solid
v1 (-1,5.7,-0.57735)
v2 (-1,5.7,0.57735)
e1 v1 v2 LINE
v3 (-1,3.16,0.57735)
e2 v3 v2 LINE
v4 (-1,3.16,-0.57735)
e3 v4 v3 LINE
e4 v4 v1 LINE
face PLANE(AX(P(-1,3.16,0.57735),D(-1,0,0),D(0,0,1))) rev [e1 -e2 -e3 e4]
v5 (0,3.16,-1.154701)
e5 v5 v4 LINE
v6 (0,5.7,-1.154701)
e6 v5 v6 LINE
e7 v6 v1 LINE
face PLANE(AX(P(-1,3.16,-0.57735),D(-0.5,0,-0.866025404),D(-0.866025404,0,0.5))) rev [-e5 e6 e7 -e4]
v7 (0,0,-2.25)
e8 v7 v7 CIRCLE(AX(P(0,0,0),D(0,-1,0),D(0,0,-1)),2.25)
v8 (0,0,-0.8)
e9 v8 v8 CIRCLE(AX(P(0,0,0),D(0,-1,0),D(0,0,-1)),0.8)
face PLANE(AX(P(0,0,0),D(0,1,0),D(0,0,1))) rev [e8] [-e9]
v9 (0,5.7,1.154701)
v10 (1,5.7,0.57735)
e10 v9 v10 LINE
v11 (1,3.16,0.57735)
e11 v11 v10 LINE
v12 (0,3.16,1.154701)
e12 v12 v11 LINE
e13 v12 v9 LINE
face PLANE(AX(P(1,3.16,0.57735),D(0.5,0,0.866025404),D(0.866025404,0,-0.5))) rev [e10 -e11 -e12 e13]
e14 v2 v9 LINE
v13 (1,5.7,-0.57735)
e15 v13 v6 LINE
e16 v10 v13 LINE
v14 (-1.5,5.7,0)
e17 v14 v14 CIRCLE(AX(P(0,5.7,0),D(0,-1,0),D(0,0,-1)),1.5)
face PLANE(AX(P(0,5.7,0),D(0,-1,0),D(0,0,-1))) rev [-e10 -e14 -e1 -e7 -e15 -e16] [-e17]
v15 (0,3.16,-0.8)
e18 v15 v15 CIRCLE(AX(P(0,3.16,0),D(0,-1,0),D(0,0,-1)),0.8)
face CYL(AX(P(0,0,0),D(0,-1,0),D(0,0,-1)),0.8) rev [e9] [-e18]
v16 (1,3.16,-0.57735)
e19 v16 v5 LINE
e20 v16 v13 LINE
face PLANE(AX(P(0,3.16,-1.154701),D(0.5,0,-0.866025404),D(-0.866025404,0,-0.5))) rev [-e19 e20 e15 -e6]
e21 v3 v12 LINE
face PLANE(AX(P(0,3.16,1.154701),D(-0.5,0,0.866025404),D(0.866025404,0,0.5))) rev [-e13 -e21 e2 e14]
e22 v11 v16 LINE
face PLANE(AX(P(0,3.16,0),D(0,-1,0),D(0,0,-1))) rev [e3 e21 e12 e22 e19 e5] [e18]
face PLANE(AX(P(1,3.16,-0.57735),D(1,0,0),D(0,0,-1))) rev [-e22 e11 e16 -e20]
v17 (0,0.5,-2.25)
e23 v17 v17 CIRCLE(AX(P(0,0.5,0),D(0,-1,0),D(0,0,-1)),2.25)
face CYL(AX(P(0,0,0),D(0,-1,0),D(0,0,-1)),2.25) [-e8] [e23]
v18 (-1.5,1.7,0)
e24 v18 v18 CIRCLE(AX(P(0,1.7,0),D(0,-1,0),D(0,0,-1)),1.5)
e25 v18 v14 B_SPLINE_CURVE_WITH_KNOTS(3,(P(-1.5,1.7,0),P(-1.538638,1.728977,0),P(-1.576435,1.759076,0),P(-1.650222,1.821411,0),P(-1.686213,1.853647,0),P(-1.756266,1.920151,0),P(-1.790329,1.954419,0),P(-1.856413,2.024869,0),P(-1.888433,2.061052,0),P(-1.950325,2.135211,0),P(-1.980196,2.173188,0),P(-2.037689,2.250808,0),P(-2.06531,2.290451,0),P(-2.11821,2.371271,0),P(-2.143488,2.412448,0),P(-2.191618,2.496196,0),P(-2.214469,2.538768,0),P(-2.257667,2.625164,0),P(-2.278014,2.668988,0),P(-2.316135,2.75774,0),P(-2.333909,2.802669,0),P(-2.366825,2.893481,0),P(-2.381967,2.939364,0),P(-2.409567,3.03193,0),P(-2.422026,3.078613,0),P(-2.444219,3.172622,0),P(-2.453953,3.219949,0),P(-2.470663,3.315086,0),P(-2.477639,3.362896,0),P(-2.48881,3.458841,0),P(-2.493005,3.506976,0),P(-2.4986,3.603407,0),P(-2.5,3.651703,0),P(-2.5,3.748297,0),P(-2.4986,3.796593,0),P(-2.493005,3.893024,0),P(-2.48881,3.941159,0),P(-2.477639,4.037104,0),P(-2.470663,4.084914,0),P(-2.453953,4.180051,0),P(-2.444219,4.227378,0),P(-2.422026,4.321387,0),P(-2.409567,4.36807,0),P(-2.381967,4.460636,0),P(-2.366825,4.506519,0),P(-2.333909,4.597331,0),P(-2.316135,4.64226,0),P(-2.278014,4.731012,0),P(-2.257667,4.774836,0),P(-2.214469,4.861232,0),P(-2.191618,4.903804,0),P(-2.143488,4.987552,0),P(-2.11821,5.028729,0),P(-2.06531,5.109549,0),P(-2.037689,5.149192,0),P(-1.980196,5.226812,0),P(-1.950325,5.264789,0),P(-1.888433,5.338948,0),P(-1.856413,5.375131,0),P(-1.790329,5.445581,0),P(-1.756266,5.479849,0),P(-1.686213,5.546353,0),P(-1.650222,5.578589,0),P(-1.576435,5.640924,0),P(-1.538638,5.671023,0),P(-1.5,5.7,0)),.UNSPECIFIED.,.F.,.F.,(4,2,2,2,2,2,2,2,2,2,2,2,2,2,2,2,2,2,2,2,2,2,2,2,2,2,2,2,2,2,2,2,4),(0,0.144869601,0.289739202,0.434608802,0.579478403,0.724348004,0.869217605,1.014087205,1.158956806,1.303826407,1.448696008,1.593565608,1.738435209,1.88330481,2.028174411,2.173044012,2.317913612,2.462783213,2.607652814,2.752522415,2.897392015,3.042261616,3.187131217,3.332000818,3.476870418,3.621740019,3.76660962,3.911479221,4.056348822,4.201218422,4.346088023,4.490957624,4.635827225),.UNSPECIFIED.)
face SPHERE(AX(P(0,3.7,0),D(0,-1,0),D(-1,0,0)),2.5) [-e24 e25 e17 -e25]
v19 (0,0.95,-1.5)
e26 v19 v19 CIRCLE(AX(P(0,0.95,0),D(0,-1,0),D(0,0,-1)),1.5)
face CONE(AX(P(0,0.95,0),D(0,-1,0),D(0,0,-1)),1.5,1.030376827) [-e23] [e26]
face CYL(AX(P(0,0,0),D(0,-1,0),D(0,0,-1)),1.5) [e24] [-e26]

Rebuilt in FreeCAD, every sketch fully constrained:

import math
import FreeCAD as App
import Part
import Sketcher
Q = App.Units.Quantity


def add_polygon(sketch, points):
    """Adds a closed chain of lines whose ends are joined by coincident constraints."""
    first, n = sketch.GeometryCount, len(points)
    for a, b in zip(points, points[1:] + points[:1]):
        sketch.addGeometry(Part.LineSegment(App.Vector(*a, 0), App.Vector(*b, 0)), False)
    for i in range(n):
        sketch.addConstraint(Sketcher.Constraint("Coincident", first + i, 2, first + (i + 1) % n, 1))

doc = App.newDocument("Part")
body = doc.addObject("PartDesign::Body", "Body")

sketch1 = doc.addObject("Sketcher::SketchObject", "Sketch")
body.addObject(sketch1)
sketch1.AttachmentSupport = (doc.XY_Plane, [""])
sketch1.MapMode = "FlatFace"
sketch1.addGeometry([
    Part.LineSegment(App.Vector(0, 0, 0), App.Vector(0, 5.7, 0)),
    Part.LineSegment(App.Vector(0, 5.7, 0), App.Vector(-1.5, 5.7, 0)),
    Part.ArcOfCircle(Part.Circle(App.Vector(0, 3.7, 0), App.Vector(0, 0, 1), 2.5), math.radians(126.869898), math.radians(233.130102)),
    Part.LineSegment(App.Vector(-1.5, 1.7, 0), App.Vector(-1.5, 0.95, 0)),
    Part.LineSegment(App.Vector(-1.5, 0.95, 0), App.Vector(-2.25, 0.5, 0)),
    Part.LineSegment(App.Vector(-2.25, 0.5, 0), App.Vector(-2.25, 0, 0)),
    Part.LineSegment(App.Vector(-2.25, 0, 0), App.Vector(0, 0, 0)),
], False)
sketch1.addConstraint([
    Sketcher.Constraint("Coincident", 0, 2, 1, 1),
    Sketcher.Constraint("Coincident", 1, 2, 2, 1),
    Sketcher.Constraint("Coincident", 2, 2, 3, 1),
    Sketcher.Constraint("Coincident", 3, 2, 4, 1),
    Sketcher.Constraint("Coincident", 4, 2, 5, 1),
    Sketcher.Constraint("Coincident", 5, 2, 6, 1),
    Sketcher.Constraint("Coincident", 6, 2, 0, 1),
    Sketcher.Constraint("Vertical", 0),
    Sketcher.Constraint("Horizontal", 1),
    Sketcher.Constraint("Vertical", 3),
    Sketcher.Constraint("Vertical", 5),
    Sketcher.Constraint("Horizontal", 6),
    Sketcher.Constraint("Coincident", 6, 2, -1, 1),
    Sketcher.Constraint("PointOnObject", 2, 3, -2),
    Sketcher.Constraint("Vertical", 1, 2, 2, 2),
    Sketcher.Constraint("Radius", 2, 2.5),
    Sketcher.Constraint("DistanceX", 1, 2, 1, 1, 1.5),
    Sketcher.Constraint("DistanceY", 0, 1, 0, 2, 5.7),
    Sketcher.Constraint("DistanceY", 5, 2, 5, 1, 0.5),
    Sketcher.Constraint("DistanceX", 6, 1, 6, 2, 2.25),
    Sketcher.Constraint("DistanceY", 3, 2, 3, 1, 0.75),
])
revolution = doc.addObject("PartDesign::Revolution", "Revolution")
body.addObject(revolution)
revolution.Profile = sketch1
revolution.ReferenceAxis = (sketch1, ["V_Axis"])
revolution.Angle = 360

sketch2 = doc.addObject("Sketcher::SketchObject", "Sketch001")
body.addObject(sketch2)
sketch2.AttachmentSupport = (doc.XZ_Plane, [""])
sketch2.MapMode = "FlatFace"
sketch2.AttachmentOffset = App.Placement(App.Vector(0, 0, -5.7), App.Rotation())
add_polygon(sketch2, [(-1, -0.57735), (-1, 0.57735), (0, 1.154701), (1, 0.57735), (1, -0.57735), (0, -1.154701)])
sketch2.addConstraint([
    Sketcher.Constraint("Vertical", 0),
    Sketcher.Constraint("Vertical", 3),
    Sketcher.Constraint("Symmetric", 0, 2, 3, 2, -1, 1),
    Sketcher.Constraint("Symmetric", 1, 2, 4, 2, -1, 1),
    Sketcher.Constraint("PointOnObject", 1, 2, -2),
    Sketcher.Constraint("Parallel", 2, 5),
    Sketcher.Constraint("Horizontal", 0, 2, 2, 2),
    Sketcher.Constraint("Angle", 1, Q("30 deg")),
    Sketcher.Constraint("DistanceX", 0, 2, -1, 1, 1.0),
    Sketcher.Constraint("DistanceY", 0, 1, 0, 2, 1.154701),
])
pocket1 = doc.addObject("PartDesign::Pocket", "Pocket")
body.addObject(pocket1)
pocket1.Profile = sketch2
pocket1.Length = 2.54
pocket1.Reversed = True

sketch3 = doc.addObject("Sketcher::SketchObject", "Sketch002")
body.addObject(sketch3)
sketch3.AttachmentSupport = (doc.XZ_Plane, [""])
sketch3.MapMode = "FlatFace"
sketch3.addGeometry(Part.Circle(App.Vector(0, 0, 0), App.Vector(0, 0, 1), 0.8), False)
sketch3.addConstraint([
    Sketcher.Constraint("Coincident", 0, 3, -1, 1),
    Sketcher.Constraint("Diameter", 0, 1.6),
])
doc.recompute()
hole = doc.addObject("PartDesign::Hole", "Hole")
body.addObject(hole)
hole.Profile = sketch3
hole.ThreadType = "None"
hole.Diameter = 1.6
hole.DepthType = "ThroughAll"

doc.recompute()
